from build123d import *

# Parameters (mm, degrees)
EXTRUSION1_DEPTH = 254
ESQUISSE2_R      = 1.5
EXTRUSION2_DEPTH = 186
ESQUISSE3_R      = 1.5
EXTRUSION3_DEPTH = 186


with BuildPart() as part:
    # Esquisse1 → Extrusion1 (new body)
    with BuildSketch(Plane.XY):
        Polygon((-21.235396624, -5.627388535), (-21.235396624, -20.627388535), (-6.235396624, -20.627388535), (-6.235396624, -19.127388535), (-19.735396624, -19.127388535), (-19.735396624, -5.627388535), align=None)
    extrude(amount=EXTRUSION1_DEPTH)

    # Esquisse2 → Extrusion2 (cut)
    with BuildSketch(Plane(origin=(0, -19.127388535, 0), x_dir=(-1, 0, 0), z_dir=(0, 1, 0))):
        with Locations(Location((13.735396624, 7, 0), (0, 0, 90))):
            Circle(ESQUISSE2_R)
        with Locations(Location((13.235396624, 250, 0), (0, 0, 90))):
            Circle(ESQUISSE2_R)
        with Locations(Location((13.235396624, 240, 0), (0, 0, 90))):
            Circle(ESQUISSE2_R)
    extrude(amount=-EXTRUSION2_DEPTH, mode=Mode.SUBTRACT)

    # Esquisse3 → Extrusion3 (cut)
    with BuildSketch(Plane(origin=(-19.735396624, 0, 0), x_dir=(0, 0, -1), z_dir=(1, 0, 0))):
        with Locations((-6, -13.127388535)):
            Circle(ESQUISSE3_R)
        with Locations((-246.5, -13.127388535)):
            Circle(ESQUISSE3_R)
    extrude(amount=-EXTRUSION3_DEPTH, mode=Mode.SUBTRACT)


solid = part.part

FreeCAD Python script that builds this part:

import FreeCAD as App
import Part
import Sketcher
Q = App.Units.Quantity


def add_polygon(sketch, points):
    """Adds a closed chain of lines whose ends are joined by coincident constraints."""
    first, n = sketch.GeometryCount, len(points)
    for a, b in zip(points, points[1:] + points[:1]):
        sketch.addGeometry(Part.LineSegment(App.Vector(*a, 0), App.Vector(*b, 0)), False)
    for i in range(n):
        sketch.addConstraint(Sketcher.Constraint("Coincident", first + i, 2, first + (i + 1) % n, 1))

doc = App.newDocument("Part")
body = doc.addObject("PartDesign::Body", "Body")

# Sketch on XY plane
sketch1 = body.newObject("Sketcher::SketchObject", "Sketch")
sketch1.AttachmentSupport = (doc.getObject("XY_Plane"), [""])
sketch1.MapMode = "FlatFace"
add_polygon(sketch1, [(-21.2, -5.6), (-21.2, -20.6), (-6.2, -20.6), (-6.2, -19.1), (-19.7, -19.1), (-19.7, -5.6)])  # lines 0-5
sketch1.addConstraint([
    Sketcher.Constraint("Vertical", 0),
    Sketcher.Constraint("Horizontal", 1),
    Sketcher.Constraint("Vertical", 2),
    Sketcher.Constraint("Horizontal", 3),
    Sketcher.Constraint("Vertical", 4),
    Sketcher.Constraint("Horizontal", 5),
    Sketcher.Constraint("Equal", 1, 0),
    Sketcher.Constraint("Equal", 5, 2),
    Sketcher.Constraint("DistanceX", 1, 1, 1, 2, Q("15 mm")),
    Sketcher.Constraint("DistanceX", 3, 2, 3, 1, Q("13.5 mm")),
    Sketcher.Constraint("DistanceY", 0, 2, -1, 1, Q("20.627389 mm")),
    Sketcher.Constraint("DistanceX", 0, 2, -1, 1, Q("21.235397 mm")),
])
pad1 = body.newObject("PartDesign::Pad", "Pad")
pad1.Profile = sketch1
pad1.Length = 254

# Sketch on XZ plane
sketch2 = body.newObject("Sketcher::SketchObject", "Sketch001")
sketch2.AttachmentSupport = (doc.getObject("XZ_Plane"), [""])
sketch2.MapMode = "FlatFace"
sketch2.AttachmentOffset = App.Placement(App.Vector(0, 0, 19.127389), App.Rotation())
sketch2.addGeometry([
    Part.Circle(App.Vector(-13.7, 7, 0), App.Vector(0, 0, 1), 1.5),
    Part.Circle(App.Vector(-13.2, 250, 0), App.Vector(0, 0, 1), 1.5),
    Part.Circle(App.Vector(-13.2, 240, 0), App.Vector(0, 0, 1), 1.5),
], False)
sketch2.addConstraint([
    Sketcher.Constraint("Equal", 0, 1),
    Sketcher.Constraint("Equal", 1, 2),
    Sketcher.Constraint("Vertical", 1, 3, 2, 3),
    Sketcher.Constraint("Diameter", 0, Q("3 mm")),
    Sketcher.Constraint("DistanceY", -1, 1, 0, 3, Q("7 mm")),
    Sketcher.Constraint("DistanceY", -1, 1, 1, 3, Q("250 mm")),
    Sketcher.Constraint("DistanceY", -1, 1, 2, 3, Q("240 mm")),
    Sketcher.Constraint("DistanceX", 0, 3, 1, 3, Q("0.5 mm")),
    Sketcher.Constraint("DistanceX", 0, 3, -1, 1, Q("13.735397 mm")),
])
pocket1 = body.newObject("PartDesign::Pocket", "Pocket")
pocket1.Profile = sketch2
pocket1.Length = 186
pocket1.Reversed = True

# Sketch on YZ plane
sketch3 = body.newObject("Sketcher::SketchObject", "Sketch002")
sketch3.AttachmentSupport = (doc.getObject("YZ_Plane"), [""])
sketch3.MapMode = "FlatFace"
sketch3.AttachmentOffset = App.Placement(App.Vector(0, 0, -19.735397), App.Rotation())
sketch3.addGeometry([
    Part.Circle(App.Vector(-13.1, 6, 0), App.Vector(0, 0, 1), 1.5),
    Part.Circle(App.Vector(-13.1, 246.5, 0), App.Vector(0, 0, 1), 1.5),
], False)
sketch3.addConstraint([
    Sketcher.Constraint("Equal", 0, 1),
    Sketcher.Constraint("Vertical", 0, 3, 1, 3),
    Sketcher.Constraint("Diameter", 0, Q("3 mm")),
    Sketcher.Constraint("DistanceY", -1, 1, 0, 3, Q("6 mm")),
    Sketcher.Constraint("DistanceY", -1, 1, 1, 3, Q("246.5 mm")),
    Sketcher.Constraint("DistanceX", 0, 3, -1, 1, Q("13.127389 mm")),
])
pocket2 = body.newObject("PartDesign::Pocket", "Pocket001")
pocket2.Profile = sketch3
pocket2.Length = 186

doc.recompute()
